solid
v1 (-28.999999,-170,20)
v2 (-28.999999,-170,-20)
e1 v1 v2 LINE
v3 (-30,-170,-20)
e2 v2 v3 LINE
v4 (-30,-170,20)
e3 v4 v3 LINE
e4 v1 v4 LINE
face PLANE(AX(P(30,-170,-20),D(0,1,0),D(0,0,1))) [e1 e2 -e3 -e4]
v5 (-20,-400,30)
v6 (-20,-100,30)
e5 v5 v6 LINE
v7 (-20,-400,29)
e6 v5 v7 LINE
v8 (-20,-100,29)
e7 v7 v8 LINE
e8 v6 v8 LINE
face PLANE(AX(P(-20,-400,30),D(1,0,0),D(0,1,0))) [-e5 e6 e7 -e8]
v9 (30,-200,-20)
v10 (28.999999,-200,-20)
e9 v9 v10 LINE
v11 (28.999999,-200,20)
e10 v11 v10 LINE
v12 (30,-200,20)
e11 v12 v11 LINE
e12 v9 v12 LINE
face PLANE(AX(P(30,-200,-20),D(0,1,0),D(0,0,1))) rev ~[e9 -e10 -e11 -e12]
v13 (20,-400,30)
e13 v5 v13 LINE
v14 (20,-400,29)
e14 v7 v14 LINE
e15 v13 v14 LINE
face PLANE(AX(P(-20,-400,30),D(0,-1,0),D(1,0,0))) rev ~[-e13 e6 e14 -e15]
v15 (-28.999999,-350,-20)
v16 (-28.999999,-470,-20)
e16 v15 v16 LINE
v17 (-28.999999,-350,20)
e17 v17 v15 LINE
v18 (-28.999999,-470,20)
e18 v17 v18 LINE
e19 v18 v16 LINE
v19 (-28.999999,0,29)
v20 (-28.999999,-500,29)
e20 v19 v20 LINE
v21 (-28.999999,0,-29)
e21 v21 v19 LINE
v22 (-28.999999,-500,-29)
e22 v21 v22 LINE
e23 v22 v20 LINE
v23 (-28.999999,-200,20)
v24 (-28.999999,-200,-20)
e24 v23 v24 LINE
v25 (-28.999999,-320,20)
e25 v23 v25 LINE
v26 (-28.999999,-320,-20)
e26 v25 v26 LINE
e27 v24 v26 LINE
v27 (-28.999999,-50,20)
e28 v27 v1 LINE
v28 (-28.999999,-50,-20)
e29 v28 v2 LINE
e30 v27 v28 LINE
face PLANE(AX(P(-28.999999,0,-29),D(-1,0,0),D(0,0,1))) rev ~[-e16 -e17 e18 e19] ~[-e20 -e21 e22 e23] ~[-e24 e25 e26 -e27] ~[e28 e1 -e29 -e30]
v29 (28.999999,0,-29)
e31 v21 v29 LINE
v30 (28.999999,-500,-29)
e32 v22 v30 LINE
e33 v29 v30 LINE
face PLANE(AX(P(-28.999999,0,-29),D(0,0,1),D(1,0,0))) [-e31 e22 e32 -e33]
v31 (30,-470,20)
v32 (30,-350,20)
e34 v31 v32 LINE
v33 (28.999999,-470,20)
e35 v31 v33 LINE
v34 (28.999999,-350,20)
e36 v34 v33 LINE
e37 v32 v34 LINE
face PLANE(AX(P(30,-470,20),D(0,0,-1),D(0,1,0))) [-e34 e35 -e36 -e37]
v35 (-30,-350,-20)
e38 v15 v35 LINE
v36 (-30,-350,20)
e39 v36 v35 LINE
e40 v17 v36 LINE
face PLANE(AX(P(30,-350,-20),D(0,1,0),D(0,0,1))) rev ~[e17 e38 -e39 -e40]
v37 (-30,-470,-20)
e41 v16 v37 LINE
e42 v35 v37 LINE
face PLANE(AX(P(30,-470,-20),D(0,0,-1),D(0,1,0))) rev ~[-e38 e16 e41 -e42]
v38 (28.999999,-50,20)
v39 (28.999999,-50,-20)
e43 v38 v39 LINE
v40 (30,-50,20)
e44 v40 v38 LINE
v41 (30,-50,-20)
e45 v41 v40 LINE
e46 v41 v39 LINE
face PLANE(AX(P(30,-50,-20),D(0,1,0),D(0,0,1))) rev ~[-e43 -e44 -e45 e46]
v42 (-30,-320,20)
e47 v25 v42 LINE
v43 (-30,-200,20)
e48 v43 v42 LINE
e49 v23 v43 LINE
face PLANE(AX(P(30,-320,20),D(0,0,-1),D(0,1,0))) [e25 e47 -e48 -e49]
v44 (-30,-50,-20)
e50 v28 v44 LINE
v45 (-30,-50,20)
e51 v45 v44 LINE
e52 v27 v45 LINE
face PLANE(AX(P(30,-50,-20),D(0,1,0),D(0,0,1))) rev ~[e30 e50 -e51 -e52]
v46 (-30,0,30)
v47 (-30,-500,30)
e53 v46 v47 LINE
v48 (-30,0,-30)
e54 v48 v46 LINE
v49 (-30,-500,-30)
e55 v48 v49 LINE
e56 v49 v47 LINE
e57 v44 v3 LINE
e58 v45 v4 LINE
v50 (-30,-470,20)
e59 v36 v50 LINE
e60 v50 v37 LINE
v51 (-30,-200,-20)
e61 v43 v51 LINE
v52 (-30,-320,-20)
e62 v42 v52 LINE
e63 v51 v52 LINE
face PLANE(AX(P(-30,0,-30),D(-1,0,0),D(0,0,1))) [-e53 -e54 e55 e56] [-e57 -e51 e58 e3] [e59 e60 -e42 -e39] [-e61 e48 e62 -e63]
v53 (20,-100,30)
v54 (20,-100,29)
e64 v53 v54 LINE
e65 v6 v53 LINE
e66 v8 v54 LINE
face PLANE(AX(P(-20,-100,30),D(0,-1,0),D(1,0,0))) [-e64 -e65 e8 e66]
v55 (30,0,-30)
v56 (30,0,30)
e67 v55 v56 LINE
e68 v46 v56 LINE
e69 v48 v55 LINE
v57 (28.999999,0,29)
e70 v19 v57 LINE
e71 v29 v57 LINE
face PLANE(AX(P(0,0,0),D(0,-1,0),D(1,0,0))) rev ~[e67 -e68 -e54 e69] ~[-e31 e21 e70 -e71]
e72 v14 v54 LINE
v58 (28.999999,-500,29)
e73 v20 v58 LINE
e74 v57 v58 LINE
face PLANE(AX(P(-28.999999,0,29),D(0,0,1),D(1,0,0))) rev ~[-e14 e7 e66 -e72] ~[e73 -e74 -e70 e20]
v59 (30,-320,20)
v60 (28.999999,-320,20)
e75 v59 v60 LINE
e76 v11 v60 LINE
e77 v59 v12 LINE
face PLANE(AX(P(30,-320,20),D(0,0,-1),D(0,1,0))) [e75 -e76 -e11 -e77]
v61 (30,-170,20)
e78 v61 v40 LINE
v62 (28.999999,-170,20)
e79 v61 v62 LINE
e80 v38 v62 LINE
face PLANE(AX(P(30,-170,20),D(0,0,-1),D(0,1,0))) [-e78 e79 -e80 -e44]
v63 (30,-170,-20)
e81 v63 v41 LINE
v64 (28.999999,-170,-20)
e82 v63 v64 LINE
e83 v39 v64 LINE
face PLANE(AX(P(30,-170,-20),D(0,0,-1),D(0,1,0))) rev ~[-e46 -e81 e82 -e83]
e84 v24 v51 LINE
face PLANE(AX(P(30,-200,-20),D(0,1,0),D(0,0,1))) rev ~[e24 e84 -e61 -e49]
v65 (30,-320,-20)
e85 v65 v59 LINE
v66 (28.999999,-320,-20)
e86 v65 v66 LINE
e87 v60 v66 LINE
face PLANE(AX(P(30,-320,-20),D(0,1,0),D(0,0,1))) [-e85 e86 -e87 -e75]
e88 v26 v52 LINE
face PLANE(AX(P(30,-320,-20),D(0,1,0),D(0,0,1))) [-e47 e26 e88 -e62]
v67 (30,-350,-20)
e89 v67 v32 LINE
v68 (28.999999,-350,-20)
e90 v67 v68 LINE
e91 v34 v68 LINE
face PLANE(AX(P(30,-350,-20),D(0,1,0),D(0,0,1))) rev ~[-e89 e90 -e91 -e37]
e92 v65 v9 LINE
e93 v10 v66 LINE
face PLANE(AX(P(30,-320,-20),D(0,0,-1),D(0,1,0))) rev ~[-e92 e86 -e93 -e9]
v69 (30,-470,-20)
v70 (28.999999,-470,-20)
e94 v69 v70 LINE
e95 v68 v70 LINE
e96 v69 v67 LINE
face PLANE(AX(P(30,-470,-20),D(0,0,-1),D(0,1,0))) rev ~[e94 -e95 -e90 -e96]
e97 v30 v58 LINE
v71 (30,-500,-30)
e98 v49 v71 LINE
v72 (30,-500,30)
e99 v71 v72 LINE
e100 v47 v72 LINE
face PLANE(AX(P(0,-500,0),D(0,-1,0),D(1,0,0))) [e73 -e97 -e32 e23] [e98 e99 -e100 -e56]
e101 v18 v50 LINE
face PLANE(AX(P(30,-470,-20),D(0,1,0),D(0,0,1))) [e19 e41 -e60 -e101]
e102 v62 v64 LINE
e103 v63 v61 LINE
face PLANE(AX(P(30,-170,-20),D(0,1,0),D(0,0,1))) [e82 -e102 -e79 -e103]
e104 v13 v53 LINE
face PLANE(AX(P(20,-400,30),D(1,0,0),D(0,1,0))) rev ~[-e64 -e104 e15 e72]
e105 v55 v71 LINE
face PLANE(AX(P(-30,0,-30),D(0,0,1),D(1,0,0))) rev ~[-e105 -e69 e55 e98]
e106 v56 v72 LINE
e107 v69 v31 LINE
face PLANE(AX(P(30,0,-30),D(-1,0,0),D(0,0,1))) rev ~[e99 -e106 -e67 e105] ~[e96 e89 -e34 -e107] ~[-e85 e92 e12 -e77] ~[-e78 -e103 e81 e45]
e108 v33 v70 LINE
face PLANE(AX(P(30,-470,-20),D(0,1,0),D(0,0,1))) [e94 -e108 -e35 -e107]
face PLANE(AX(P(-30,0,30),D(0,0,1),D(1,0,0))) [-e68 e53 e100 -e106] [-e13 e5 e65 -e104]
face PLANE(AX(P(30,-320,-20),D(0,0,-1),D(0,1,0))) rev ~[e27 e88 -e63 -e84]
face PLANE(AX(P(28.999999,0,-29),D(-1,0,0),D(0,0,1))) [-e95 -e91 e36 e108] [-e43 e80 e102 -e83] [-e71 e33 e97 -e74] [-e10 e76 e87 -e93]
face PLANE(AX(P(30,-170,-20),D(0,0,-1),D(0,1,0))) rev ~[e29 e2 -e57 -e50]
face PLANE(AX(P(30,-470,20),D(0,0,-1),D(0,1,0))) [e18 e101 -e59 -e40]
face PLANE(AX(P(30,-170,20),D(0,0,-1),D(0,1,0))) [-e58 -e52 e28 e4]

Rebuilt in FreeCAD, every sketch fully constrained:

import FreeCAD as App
import Part
import Sketcher


def add_polygon(sketch, points):
    """Adds a closed chain of lines whose ends are joined by coincident constraints."""
    first, n = sketch.GeometryCount, len(points)
    for a, b in zip(points, points[1:] + points[:1]):
        sketch.addGeometry(Part.LineSegment(App.Vector(*a, 0), App.Vector(*b, 0)), False)
    for i in range(n):
        sketch.addConstraint(Sketcher.Constraint("Coincident", first + i, 2, first + (i + 1) % n, 1))

doc = App.newDocument("Part")
body = doc.addObject("PartDesign::Body", "Body")

# Sketch on XZ plane
sketch1 = body.newObject("Sketcher::SketchObject", "Sketch")
sketch1.AttachmentSupport = (doc.getObject("XZ_Plane"), [""])
sketch1.MapMode = "FlatFace"
add_polygon(sketch1, [(-30, 30), (-30, -30), (30, -30), (30, 30)])  # lines 0-3
add_polygon(sketch1, [(29, -29), (-29, -29), (-29, 29), (29, 29)])  # lines 4-7
sketch1.addConstraint(Sketcher.Constraint("Vertical", 0))
sketch1.addConstraint(Sketcher.Constraint("Horizontal", 1))
sketch1.addConstraint(Sketcher.Constraint("Vertical", 2))
sketch1.addConstraint(Sketcher.Constraint("Horizontal", 3))
sketch1.addConstraint(Sketcher.Constraint("Horizontal", 4))
sketch1.addConstraint(Sketcher.Constraint("Vertical", 5))
sketch1.addConstraint(Sketcher.Constraint("Horizontal", 6))
sketch1.addConstraint(Sketcher.Constraint("Vertical", 7))
sketch1.addConstraint(Sketcher.Constraint("Symmetric", 0, 2, 2, 2, -1, 1))
sketch1.addConstraint(Sketcher.Constraint("Symmetric", 4, 2, 6, 2, -1, 1))
sketch1.addConstraint(Sketcher.Constraint("Equal", 3, 0))
sketch1.addConstraint(Sketcher.Constraint("DistanceX", 1, 1, 1, 2, 60.0))
sketch1.addConstraint(Sketcher.Constraint("DistanceY", 5, 1, 5, 2, 58.0))
sketch1.addConstraint(Sketcher.Constraint("DistanceX", 4, 2, -1, 1, 28.999999))
pad1 = body.newObject("PartDesign::Pad", "Pad")
pad1.Profile = sketch1
pad1.Length = 500

# Sketch on YZ plane
sketch2 = body.newObject("Sketcher::SketchObject", "Sketch001")
sketch2.AttachmentSupport = (doc.getObject("YZ_Plane"), [""])
sketch2.MapMode = "FlatFace"
sketch2.AttachmentOffset = App.Placement(App.Vector(0, 0, 30), App.Rotation())
add_polygon(sketch2, [(-470, 20), (-470, -20), (-350, -20), (-350, 20)])  # lines 0-3
add_polygon(sketch2, [(-320, 20), (-320, -20), (-200, -20), (-200, 20)])  # lines 4-7
add_polygon(sketch2, [(-170, 20), (-170, -20), (-50, -20), (-50, 20)])  # lines 8-11
sketch2.addConstraint(Sketcher.Constraint("Vertical", 0))
sketch2.addConstraint(Sketcher.Constraint("Horizontal", 1))
sketch2.addConstraint(Sketcher.Constraint("Vertical", 2))
sketch2.addConstraint(Sketcher.Constraint("Horizontal", 3))
sketch2.addConstraint(Sketcher.Constraint("Vertical", 4))
sketch2.addConstraint(Sketcher.Constraint("Horizontal", 5))
sketch2.addConstraint(Sketcher.Constraint("Vertical", 6))
sketch2.addConstraint(Sketcher.Constraint("Horizontal", 7))
sketch2.addConstraint(Sketcher.Constraint("Vertical", 8))
sketch2.addConstraint(Sketcher.Constraint("Horizontal", 9))
sketch2.addConstraint(Sketcher.Constraint("Vertical", 10))
sketch2.addConstraint(Sketcher.Constraint("Horizontal", 11))
sketch2.addConstraint(Sketcher.Constraint("Horizontal", 1, 2, 4, 2))
sketch2.addConstraint(Sketcher.Constraint("Horizontal", 3, 2, 6, 2))
sketch2.addConstraint(Sketcher.Constraint("Horizontal", 5, 2, 8, 2))
sketch2.addConstraint(Sketcher.Constraint("Horizontal", 7, 2, 10, 2))
sketch2.addConstraint(Sketcher.Constraint("Equal", 3, 5))
sketch2.addConstraint(Sketcher.Constraint("Equal", 7, 9))
sketch2.addConstraint(Sketcher.Constraint("DistanceX", 1, 1, 1, 2, 120.0))
sketch2.addConstraint(Sketcher.Constraint("DistanceY", 0, 2, 0, 1, 40.0))
sketch2.addConstraint(Sketcher.Constraint("DistanceX", 0, 2, -1, 1, 470.0))
sketch2.addConstraint(Sketcher.Constraint("DistanceY", 0, 2, -1, 1, 20.0))
sketch2.addConstraint(Sketcher.Constraint("DistanceX", 4, 2, -1, 1, 320.0))
sketch2.addConstraint(Sketcher.Constraint("DistanceX", 8, 2, -1, 1, 170.0))
pocket1 = body.newObject("PartDesign::Pocket", "Pocket")
pocket1.Profile = sketch2
pocket1.Length = 150

# Sketch on XY plane
sketch3 = body.newObject("Sketcher::SketchObject", "Sketch002")
sketch3.AttachmentSupport = (doc.getObject("XY_Plane"), [""])
sketch3.MapMode = "FlatFace"
sketch3.AttachmentOffset = App.Placement(App.Vector(0, 0, 30), App.Rotation())
add_polygon(sketch3, [(-20, -100), (-20, -400), (20, -400), (20, -100)])  # lines 0-3
sketch3.addConstraint(Sketcher.Constraint("Vertical", 0))
sketch3.addConstraint(Sketcher.Constraint("Horizontal", 1))
sketch3.addConstraint(Sketcher.Constraint("Vertical", 2))
sketch3.addConstraint(Sketcher.Constraint("Horizontal", 3))
sketch3.addConstraint(Sketcher.Constraint("DistanceX", 1, 1, 1, 2, 40.0))
sketch3.addConstraint(Sketcher.Constraint("DistanceY", 0, 2, 0, 1, 300.0))
sketch3.addConstraint(Sketcher.Constraint("DistanceX", 0, 2, -1, 1, 20.0))
sketch3.addConstraint(Sketcher.Constraint("DistanceY", 0, 2, -1, 1, 400.0))
pocket2 = body.newObject("PartDesign::Pocket", "Pocket001")
pocket2.Profile = sketch3
pocket2.Length = 25

doc.recompute()
